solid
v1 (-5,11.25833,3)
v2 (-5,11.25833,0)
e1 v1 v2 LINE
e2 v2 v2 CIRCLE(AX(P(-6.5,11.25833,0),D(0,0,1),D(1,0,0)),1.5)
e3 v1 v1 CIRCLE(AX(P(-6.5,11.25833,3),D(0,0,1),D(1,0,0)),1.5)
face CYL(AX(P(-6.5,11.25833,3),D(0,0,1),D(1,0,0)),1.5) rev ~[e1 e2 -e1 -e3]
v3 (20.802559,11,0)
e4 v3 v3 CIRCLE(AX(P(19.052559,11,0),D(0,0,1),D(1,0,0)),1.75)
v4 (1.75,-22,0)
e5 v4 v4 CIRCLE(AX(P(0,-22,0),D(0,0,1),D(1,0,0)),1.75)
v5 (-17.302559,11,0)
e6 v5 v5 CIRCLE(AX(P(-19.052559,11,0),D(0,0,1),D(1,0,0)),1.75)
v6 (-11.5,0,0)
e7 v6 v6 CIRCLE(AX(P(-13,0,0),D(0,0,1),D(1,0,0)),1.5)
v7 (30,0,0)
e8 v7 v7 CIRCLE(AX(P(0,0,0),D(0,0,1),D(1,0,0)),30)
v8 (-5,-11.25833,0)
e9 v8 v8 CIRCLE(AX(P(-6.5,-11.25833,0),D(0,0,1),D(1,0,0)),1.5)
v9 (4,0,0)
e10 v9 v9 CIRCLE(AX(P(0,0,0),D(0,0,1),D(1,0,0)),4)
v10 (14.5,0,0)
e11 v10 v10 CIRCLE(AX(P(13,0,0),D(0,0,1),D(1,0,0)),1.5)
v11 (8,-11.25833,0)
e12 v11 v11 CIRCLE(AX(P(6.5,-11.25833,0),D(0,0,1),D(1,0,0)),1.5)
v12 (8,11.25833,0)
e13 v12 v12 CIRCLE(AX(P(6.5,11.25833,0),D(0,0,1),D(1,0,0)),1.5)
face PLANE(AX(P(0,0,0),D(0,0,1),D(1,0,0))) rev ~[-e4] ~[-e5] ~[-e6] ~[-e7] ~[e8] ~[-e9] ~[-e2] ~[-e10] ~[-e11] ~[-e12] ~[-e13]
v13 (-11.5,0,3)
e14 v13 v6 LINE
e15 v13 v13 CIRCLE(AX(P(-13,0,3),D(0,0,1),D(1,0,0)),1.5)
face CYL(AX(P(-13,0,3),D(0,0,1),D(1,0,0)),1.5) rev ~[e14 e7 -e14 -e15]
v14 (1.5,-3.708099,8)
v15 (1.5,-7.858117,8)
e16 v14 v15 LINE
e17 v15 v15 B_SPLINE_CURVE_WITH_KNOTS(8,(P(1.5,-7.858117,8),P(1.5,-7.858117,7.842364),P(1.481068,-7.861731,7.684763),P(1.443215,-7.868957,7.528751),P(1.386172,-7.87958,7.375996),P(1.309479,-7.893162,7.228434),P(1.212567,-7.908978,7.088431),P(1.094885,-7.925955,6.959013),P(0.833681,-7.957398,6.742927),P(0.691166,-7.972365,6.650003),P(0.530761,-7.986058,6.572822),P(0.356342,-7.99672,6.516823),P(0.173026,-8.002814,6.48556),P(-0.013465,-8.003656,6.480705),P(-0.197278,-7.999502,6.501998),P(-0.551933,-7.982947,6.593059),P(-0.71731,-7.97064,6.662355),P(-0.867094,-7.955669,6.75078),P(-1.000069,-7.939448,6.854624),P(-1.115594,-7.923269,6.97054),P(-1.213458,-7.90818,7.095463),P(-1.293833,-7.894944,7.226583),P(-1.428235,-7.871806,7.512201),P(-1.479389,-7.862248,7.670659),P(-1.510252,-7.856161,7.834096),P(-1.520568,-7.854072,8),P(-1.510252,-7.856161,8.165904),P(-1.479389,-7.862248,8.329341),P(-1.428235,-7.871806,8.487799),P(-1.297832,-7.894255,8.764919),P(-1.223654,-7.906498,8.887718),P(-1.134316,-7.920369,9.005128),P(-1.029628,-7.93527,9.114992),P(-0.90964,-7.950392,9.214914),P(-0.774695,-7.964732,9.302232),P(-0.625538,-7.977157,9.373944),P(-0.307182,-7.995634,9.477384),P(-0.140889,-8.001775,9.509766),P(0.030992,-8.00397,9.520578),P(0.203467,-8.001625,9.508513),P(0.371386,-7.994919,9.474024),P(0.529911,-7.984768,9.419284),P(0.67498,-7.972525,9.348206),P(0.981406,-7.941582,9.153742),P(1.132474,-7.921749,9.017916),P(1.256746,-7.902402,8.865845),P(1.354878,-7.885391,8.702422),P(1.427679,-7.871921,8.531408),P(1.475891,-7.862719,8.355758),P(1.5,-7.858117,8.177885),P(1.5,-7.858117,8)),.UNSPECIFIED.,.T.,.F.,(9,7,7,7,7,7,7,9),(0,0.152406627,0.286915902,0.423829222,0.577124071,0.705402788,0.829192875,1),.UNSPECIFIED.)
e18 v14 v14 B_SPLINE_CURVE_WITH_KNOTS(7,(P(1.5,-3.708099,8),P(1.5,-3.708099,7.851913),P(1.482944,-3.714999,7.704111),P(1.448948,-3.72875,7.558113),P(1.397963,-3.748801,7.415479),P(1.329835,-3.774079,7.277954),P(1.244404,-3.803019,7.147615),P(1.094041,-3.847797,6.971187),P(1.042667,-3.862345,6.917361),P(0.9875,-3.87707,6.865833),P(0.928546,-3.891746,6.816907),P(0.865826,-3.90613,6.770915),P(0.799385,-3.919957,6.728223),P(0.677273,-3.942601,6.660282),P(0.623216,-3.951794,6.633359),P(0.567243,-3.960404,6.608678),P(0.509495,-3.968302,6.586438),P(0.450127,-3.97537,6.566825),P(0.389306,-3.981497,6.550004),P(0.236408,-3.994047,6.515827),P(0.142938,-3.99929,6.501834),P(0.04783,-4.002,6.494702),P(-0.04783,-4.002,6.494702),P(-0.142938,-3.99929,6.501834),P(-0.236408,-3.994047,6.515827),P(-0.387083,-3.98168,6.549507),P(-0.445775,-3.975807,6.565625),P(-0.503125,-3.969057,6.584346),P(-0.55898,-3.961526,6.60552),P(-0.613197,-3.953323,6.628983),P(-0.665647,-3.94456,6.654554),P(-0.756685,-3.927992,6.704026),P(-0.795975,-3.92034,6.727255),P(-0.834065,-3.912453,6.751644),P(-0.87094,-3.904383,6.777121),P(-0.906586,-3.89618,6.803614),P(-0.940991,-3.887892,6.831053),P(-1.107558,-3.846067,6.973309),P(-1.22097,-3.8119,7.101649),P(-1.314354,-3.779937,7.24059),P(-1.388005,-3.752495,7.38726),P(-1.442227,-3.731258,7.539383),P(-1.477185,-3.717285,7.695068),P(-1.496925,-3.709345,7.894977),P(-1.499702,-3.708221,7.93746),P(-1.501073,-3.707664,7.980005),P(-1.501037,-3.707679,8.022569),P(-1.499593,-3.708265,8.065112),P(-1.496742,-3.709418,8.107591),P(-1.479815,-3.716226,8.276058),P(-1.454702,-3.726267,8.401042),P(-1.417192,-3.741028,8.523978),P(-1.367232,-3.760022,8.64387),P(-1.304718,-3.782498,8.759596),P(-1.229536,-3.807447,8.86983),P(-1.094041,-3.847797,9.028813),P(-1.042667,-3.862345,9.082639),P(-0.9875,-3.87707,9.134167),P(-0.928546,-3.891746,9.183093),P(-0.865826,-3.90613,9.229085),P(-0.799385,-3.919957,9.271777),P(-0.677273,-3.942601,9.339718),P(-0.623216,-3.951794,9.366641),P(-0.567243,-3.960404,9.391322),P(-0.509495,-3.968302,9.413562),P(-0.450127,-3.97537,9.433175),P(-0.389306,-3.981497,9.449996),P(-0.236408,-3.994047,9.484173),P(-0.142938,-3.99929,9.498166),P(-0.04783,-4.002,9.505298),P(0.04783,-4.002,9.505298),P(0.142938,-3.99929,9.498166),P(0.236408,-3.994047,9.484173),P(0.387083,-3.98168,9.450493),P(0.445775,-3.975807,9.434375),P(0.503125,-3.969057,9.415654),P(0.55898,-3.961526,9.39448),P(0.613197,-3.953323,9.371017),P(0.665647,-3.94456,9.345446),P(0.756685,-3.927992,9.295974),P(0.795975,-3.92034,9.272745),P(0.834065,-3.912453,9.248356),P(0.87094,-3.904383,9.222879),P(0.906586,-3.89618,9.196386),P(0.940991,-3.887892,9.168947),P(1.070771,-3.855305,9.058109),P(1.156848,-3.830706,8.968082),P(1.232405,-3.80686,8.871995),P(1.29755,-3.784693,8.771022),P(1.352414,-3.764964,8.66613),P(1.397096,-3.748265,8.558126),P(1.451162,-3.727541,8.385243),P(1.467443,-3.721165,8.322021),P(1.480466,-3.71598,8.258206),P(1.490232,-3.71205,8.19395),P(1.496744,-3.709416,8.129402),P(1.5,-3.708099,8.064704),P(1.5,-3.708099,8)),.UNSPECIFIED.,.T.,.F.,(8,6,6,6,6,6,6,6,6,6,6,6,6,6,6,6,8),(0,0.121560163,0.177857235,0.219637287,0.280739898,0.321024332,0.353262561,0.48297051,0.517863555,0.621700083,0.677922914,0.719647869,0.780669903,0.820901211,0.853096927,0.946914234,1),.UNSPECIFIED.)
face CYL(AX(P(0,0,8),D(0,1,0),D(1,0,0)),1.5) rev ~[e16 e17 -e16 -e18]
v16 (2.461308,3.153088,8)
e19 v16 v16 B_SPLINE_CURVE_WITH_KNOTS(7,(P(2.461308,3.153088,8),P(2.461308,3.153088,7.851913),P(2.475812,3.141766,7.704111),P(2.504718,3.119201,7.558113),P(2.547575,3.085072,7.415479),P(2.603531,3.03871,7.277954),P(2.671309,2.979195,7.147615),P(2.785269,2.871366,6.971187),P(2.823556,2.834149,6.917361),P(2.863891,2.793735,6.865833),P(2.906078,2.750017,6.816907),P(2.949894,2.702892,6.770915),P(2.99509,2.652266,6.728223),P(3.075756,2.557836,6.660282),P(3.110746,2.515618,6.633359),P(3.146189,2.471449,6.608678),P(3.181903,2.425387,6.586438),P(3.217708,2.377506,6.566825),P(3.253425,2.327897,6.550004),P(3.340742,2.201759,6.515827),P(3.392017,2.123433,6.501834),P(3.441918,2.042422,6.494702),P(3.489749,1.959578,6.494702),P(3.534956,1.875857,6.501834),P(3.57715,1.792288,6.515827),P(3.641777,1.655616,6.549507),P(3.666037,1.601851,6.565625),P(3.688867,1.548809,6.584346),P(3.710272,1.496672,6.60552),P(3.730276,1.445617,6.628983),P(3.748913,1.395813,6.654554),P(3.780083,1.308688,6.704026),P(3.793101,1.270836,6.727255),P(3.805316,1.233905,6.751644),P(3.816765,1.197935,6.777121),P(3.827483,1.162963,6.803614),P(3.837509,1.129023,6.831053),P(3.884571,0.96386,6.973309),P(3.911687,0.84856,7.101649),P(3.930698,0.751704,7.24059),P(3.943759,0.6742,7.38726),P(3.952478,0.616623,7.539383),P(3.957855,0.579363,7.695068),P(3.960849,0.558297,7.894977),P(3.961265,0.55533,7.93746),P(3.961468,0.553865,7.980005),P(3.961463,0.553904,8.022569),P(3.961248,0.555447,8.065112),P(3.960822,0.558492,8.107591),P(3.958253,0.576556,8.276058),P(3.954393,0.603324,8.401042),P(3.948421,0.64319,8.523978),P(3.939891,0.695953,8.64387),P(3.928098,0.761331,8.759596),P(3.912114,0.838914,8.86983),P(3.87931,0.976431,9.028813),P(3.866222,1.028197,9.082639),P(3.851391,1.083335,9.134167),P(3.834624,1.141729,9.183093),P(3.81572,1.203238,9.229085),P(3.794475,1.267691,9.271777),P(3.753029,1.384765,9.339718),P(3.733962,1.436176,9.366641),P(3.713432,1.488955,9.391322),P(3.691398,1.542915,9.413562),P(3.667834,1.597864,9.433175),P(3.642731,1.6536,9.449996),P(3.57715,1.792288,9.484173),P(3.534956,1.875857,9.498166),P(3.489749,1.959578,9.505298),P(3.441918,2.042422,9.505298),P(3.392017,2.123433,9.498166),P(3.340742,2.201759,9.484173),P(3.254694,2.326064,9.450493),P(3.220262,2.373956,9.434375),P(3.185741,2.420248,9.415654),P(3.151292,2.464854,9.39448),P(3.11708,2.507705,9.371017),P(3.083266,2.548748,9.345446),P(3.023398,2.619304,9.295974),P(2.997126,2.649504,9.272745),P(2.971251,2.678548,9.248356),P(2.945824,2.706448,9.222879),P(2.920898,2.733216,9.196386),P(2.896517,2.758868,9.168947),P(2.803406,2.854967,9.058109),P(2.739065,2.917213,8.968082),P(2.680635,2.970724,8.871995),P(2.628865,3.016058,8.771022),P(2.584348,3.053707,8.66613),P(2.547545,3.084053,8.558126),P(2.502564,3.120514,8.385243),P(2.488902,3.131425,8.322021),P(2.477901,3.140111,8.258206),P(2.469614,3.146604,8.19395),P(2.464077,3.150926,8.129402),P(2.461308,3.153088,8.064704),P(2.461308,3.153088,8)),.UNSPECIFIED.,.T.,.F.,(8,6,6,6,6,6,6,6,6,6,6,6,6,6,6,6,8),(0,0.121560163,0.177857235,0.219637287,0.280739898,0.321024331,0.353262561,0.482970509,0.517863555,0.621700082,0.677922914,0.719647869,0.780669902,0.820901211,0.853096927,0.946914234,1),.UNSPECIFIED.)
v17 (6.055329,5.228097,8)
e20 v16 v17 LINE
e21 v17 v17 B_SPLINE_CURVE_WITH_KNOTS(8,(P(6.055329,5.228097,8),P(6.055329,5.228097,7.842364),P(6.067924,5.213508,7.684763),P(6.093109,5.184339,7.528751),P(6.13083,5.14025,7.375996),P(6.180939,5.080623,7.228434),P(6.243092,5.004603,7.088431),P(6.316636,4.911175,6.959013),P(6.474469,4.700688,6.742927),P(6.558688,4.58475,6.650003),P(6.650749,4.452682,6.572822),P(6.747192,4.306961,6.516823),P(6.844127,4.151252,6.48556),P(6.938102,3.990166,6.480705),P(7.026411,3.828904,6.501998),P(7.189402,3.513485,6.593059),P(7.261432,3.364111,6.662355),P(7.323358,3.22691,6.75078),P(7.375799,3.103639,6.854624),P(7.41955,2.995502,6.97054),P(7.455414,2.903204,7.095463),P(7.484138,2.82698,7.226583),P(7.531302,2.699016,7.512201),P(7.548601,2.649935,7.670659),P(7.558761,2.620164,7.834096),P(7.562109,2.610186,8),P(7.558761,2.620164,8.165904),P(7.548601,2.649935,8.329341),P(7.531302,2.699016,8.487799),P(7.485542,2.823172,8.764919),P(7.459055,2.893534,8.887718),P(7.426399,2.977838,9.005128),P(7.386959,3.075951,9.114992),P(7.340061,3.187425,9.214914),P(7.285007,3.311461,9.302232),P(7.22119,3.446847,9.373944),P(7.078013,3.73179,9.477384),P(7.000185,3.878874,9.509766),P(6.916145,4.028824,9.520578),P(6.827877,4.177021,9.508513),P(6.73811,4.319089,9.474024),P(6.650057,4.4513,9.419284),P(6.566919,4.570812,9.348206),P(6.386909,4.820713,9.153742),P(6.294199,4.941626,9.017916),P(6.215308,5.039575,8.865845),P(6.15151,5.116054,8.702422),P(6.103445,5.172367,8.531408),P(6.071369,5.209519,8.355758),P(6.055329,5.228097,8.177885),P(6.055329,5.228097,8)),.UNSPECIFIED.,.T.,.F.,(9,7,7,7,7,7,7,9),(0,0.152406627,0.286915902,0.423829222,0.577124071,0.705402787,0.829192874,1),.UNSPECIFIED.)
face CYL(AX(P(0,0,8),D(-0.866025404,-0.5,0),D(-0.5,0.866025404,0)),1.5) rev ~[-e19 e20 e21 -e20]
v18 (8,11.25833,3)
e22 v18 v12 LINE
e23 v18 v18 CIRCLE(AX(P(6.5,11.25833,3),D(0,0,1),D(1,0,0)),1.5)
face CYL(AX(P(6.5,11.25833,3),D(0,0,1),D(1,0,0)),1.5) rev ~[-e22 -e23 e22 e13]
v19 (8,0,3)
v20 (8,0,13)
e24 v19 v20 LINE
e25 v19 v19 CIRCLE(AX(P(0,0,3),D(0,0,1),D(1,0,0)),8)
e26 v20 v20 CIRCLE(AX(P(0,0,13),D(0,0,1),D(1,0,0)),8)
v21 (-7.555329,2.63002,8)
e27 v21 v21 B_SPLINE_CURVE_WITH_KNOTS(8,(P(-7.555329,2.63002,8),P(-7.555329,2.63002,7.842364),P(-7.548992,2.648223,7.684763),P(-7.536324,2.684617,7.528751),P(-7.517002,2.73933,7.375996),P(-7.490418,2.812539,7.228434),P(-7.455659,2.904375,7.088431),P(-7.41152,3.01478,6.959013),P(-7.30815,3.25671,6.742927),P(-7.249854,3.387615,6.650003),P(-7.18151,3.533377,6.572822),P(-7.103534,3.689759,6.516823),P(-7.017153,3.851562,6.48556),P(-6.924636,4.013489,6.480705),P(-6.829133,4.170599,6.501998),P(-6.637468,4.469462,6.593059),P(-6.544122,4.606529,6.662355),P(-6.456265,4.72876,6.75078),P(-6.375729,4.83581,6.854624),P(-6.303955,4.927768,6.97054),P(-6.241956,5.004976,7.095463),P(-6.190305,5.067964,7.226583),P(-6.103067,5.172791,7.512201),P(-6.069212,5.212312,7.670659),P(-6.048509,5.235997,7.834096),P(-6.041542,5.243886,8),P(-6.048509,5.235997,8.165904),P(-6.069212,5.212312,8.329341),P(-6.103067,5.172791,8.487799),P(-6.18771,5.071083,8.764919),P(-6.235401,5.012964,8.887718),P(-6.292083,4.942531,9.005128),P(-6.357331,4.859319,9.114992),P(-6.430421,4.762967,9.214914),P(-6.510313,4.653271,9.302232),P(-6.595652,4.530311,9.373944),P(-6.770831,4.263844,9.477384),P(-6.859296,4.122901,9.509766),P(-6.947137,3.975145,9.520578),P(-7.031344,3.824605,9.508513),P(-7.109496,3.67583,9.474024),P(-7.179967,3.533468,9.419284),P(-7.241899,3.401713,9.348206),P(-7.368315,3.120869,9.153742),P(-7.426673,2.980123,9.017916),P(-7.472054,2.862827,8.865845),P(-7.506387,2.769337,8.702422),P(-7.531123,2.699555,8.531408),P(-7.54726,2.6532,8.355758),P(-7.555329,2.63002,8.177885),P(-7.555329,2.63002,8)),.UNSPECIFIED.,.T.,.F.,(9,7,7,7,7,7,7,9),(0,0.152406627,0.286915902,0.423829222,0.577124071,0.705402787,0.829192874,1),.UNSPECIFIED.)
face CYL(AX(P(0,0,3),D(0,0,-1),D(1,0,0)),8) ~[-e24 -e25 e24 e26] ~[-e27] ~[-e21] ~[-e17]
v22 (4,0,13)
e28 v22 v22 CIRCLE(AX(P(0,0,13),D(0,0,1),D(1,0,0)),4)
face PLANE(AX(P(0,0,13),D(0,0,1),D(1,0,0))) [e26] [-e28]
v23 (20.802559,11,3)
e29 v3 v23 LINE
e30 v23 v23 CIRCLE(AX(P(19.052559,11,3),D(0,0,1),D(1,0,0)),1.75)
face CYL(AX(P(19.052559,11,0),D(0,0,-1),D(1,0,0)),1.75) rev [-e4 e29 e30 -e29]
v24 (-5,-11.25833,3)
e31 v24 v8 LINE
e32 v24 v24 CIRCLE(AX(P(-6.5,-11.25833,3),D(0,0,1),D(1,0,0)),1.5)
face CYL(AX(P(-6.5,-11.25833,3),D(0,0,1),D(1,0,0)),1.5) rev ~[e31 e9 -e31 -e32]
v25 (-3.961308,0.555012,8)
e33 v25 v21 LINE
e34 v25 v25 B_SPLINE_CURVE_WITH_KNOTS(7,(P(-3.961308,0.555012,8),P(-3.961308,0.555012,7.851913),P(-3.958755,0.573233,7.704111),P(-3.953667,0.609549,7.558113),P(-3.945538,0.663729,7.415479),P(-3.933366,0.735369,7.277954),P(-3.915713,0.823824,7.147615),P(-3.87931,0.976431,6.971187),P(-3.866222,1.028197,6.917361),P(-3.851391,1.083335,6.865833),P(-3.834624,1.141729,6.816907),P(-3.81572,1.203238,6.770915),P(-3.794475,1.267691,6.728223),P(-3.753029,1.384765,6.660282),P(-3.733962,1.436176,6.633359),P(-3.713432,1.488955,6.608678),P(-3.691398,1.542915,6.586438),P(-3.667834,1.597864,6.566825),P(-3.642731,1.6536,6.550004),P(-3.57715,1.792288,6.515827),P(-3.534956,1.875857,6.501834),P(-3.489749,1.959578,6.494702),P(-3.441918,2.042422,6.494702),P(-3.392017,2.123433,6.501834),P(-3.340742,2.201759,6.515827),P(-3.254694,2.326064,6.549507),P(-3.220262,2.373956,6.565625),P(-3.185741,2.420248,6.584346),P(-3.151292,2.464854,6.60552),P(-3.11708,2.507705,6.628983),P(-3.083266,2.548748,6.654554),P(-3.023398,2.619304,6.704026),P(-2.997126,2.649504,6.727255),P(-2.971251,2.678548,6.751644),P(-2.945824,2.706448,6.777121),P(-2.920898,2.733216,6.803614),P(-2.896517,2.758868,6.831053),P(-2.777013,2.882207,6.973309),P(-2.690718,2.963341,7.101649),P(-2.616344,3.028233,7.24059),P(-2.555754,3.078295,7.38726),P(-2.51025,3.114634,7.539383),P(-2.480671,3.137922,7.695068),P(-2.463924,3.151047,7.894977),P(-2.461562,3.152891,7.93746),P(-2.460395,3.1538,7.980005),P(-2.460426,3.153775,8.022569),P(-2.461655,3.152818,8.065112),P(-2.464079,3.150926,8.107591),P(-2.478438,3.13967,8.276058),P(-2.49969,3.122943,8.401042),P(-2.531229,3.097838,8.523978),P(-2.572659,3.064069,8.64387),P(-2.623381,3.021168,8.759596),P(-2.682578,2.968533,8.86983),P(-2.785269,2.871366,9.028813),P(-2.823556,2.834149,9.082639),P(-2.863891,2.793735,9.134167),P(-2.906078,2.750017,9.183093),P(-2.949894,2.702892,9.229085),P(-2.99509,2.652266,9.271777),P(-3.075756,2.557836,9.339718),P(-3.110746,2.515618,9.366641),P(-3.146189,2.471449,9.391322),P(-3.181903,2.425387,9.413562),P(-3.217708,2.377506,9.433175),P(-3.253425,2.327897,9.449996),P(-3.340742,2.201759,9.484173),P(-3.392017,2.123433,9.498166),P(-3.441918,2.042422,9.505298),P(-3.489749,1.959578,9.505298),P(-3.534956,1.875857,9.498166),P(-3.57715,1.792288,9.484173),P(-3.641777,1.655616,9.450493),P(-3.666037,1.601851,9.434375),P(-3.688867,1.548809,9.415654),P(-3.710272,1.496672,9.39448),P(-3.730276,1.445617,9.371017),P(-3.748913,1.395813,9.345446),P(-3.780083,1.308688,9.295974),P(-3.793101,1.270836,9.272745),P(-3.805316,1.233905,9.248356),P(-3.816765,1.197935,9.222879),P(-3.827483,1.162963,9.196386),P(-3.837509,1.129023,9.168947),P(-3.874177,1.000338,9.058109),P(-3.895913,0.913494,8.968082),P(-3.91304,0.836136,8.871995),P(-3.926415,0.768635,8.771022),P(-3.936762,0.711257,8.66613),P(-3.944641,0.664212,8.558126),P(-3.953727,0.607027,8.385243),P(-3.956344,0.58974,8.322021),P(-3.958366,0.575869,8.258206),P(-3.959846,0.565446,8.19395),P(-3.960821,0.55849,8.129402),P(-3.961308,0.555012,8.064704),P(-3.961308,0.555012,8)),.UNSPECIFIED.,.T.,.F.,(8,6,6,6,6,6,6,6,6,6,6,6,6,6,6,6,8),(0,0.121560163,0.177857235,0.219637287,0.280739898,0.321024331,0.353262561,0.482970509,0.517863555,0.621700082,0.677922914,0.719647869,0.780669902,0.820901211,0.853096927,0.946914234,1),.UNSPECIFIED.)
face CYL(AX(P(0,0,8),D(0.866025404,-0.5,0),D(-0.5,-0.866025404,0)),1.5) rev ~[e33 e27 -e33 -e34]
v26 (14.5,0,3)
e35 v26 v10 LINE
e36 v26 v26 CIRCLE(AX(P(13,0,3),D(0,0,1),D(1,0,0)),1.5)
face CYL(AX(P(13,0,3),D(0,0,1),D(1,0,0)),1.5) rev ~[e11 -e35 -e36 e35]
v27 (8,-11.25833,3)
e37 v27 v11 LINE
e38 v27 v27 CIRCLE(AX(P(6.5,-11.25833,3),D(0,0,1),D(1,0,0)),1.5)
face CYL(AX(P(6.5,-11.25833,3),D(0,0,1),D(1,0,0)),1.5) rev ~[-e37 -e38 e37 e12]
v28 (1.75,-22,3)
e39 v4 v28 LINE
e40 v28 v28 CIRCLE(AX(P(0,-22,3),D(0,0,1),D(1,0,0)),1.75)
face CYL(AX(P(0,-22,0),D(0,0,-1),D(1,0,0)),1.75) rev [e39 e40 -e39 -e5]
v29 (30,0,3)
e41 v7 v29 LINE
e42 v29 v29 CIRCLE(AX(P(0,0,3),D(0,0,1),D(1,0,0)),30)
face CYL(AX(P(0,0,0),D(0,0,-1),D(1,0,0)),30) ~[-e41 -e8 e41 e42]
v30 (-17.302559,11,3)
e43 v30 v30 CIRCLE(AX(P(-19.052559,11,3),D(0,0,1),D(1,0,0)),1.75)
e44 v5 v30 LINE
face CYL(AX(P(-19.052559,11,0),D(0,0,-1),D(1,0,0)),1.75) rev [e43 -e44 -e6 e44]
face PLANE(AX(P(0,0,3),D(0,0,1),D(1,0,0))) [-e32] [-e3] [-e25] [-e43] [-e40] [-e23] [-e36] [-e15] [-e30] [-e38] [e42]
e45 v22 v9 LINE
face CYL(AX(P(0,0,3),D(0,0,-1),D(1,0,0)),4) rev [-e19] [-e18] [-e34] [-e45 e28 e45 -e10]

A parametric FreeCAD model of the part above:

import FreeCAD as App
import Part
import Sketcher
from FreeCAD import Vector

doc = App.newDocument("Part")
params = doc.addObject("Spreadsheet::Sheet", "Params")
for row, (alias, value) in enumerate([
    ("sketch1_diameter", "60 mm"),
    ("sketch1_diameter2", "8 mm"),
    ("sketch1_diameter3", "3.5 mm"),
    ("pad1_length", "3 mm"),
    ("sketch2_diameter", "16 mm"),
    ("sketch2_diameter2", "8 mm"),
    ("pad2_length", "10 mm"),
    ("sketch3_diameter", "3 mm"),
    ("sketch4_diameter", "3 mm"),
    ("pocket2_length", "11.493775 mm"),
], start=1):
    params.set(f"A{row}", alias)
    params.set(f"B{row}", "=" + value)
    params.setAlias(f"B{row}", alias)

body = doc.addObject("PartDesign::Body", "Body")

sketch1 = body.newObject("Sketcher::SketchObject", "Sketch")
sketch1.AttachmentSupport = (doc.getObject("XY_Plane"), [""])
sketch1.MapMode = "FlatFace"
sketch1.addGeometry([
    Part.Circle(Vector(0, 0, 0), Vector(0, 0, 1), 30),
    Part.Circle(Vector(0, -22, 0), Vector(0, 0, 1), 1.8),
    Part.Circle(Vector(-19.1, 11, 0), Vector(0, 0, 1), 1.8),
    Part.Circle(Vector(0, 0, 0), Vector(0, 0, 1), 4),
    Part.Circle(Vector(19.1, 11, 0), Vector(0, 0, 1), 1.8),
], False)
sketch1.addConstraint([
    Sketcher.Constraint("Coincident", 0, 3, -1, 1),
    Sketcher.Constraint("Coincident", 3, 3, -1, 1),
    Sketcher.Constraint("Equal", 1, 2),
    Sketcher.Constraint("Equal", 2, 4),
    Sketcher.Constraint("Symmetric", 2, 3, 4, 3, -2),
    Sketcher.Constraint("PointOnObject", 1, 3, -2),
    Sketcher.Constraint("Diameter", 0, 60.0),
    Sketcher.Constraint("Diameter", 3, 8.0),
    Sketcher.Constraint("Diameter", 1, 3.5),
    Sketcher.Constraint("DistanceY", 1, 3, -1, 1, 22.0),
    Sketcher.Constraint("DistanceY", -1, 1, 2, 3, 11.0),
    Sketcher.Constraint("DistanceX", 2, 3, -1, 1, 19.052559),
])
sketch1.setExpression("Constraints[6]", "Params.sketch1_diameter")
sketch1.setExpression("Constraints[7]", "Params.sketch1_diameter2")
sketch1.setExpression("Constraints[8]", "Params.sketch1_diameter3")
pad1 = body.newObject("PartDesign::Pad", "Pad")
pad1.Profile = sketch1
pad1.setExpression("Length", "Params.pad1_length")

sketch2 = body.newObject("Sketcher::SketchObject", "Sketch001")
sketch2.AttachmentSupport = (doc.getObject("XY_Plane"), [""])
sketch2.MapMode = "FlatFace"
sketch2.AttachmentOffset = App.Placement(Vector(0, 0, 3), App.Rotation())
sketch2.addGeometry([
    Part.Circle(Vector(0, 0, 0), Vector(0, 0, 1), 8),
    Part.Circle(Vector(0, 0, 0), Vector(0, 0, 1), 4),
], False)
sketch2.addConstraint([
    Sketcher.Constraint("Coincident", 0, 3, -1, 1),
    Sketcher.Constraint("Coincident", 1, 3, -1, 1),
    Sketcher.Constraint("Diameter", 0, 16.0),
    Sketcher.Constraint("Diameter", 1, 8.0),
])
sketch2.setExpression("Constraints[2]", "Params.sketch2_diameter")
sketch2.setExpression("Constraints[3]", "Params.sketch2_diameter2")
pad2 = body.newObject("PartDesign::Pad", "Pad001")
pad2.Profile = sketch2
pad2.setExpression("Length", "Params.pad2_length")

sketch3 = body.newObject("Sketcher::SketchObject", "Sketch002")
sketch3.AttachmentSupport = (doc.getObject("XY_Plane"), [""])
sketch3.MapMode = "FlatFace"
sketch3.AttachmentOffset = App.Placement(Vector(0, 0, 3), App.Rotation())
sketch3.addGeometry([
    Part.Circle(Vector(-6.5, 11.3, 0), Vector(0, 0, 1), 1.5),
    Part.Circle(Vector(13, 0, 0), Vector(0, 0, 1), 1.5),
    Part.Circle(Vector(-6.5, -11.3, 0), Vector(0, 0, 1), 1.5),
    Part.Circle(Vector(6.5, 11.3, 0), Vector(0, 0, 1), 1.5),
    Part.Circle(Vector(6.5, -11.3, 0), Vector(0, 0, 1), 1.5),
    Part.Circle(Vector(-13, 0, 0), Vector(0, 0, 1), 1.5),
], False)
sketch3.addConstraint([
    Sketcher.Constraint("Equal", 0, 1),
    Sketcher.Constraint("Equal", 1, 2),
    Sketcher.Constraint("Equal", 2, 3),
    Sketcher.Constraint("Equal", 3, 4),
    Sketcher.Constraint("Equal", 4, 5),
    Sketcher.Constraint("Symmetric", 2, 3, 3, 3, -1, 1),
    Sketcher.Constraint("Symmetric", 0, 3, 4, 3, -1, 1),
    Sketcher.Constraint("Symmetric", 1, 3, 5, 3, -1, 1),
    Sketcher.Constraint("Symmetric", 0, 3, 3, 3, -2),
    Sketcher.Constraint("PointOnObject", 1, 3, -1),
    Sketcher.Constraint("Diameter", 0, 3.0),
    Sketcher.Constraint("DistanceX", -1, 1, 1, 3, 13.0),
    Sketcher.Constraint("DistanceX", 0, 3, 3, 3, 13.0),
    Sketcher.Constraint("DistanceY", -1, 1, 0, 3, 11.25833),
])
sketch3.setExpression("Constraints[10]", "Params.sketch3_diameter")
pocket1 = body.newObject("PartDesign::Pocket", "Pocket")
pocket1.Profile = sketch3
pocket1.Type = "ThroughAll"

sketch4 = body.newObject("Sketcher::SketchObject", "Sketch003")
sketch4.AttachmentSupport = (doc.getObject("XZ_Plane"), [""])
sketch4.MapMode = "FlatFace"
sketch4.addGeometry(Part.Circle(Vector(0, 8, 0), Vector(0, 0, 1), 1.5), False)
sketch4.addConstraint([
    Sketcher.Constraint("PointOnObject", 0, 3, -2),
    Sketcher.Constraint("Diameter", 0, 3.0),
    Sketcher.Constraint("DistanceY", -1, 1, 0, 3, 8.0),
])
sketch4.setExpression("Constraints[1]", "Params.sketch4_diameter")
pocket2 = body.newObject("PartDesign::Pocket", "Pocket001")
pocket2.Profile = sketch4
pocket2.setExpression("Length", "Params.pocket2_length")
pocket2.Reversed = True
doc.recompute()

polarpattern = body.newObject("PartDesign::PolarPattern", "PolarPattern")
polarpattern.Originals = [pocket2]
polarpattern.Axis = (doc.getObject("Z_Axis"), [""])
polarpattern.Angle = 360
polarpattern.Occurrences = 3
body.Tip = polarpattern

doc.recompute()
